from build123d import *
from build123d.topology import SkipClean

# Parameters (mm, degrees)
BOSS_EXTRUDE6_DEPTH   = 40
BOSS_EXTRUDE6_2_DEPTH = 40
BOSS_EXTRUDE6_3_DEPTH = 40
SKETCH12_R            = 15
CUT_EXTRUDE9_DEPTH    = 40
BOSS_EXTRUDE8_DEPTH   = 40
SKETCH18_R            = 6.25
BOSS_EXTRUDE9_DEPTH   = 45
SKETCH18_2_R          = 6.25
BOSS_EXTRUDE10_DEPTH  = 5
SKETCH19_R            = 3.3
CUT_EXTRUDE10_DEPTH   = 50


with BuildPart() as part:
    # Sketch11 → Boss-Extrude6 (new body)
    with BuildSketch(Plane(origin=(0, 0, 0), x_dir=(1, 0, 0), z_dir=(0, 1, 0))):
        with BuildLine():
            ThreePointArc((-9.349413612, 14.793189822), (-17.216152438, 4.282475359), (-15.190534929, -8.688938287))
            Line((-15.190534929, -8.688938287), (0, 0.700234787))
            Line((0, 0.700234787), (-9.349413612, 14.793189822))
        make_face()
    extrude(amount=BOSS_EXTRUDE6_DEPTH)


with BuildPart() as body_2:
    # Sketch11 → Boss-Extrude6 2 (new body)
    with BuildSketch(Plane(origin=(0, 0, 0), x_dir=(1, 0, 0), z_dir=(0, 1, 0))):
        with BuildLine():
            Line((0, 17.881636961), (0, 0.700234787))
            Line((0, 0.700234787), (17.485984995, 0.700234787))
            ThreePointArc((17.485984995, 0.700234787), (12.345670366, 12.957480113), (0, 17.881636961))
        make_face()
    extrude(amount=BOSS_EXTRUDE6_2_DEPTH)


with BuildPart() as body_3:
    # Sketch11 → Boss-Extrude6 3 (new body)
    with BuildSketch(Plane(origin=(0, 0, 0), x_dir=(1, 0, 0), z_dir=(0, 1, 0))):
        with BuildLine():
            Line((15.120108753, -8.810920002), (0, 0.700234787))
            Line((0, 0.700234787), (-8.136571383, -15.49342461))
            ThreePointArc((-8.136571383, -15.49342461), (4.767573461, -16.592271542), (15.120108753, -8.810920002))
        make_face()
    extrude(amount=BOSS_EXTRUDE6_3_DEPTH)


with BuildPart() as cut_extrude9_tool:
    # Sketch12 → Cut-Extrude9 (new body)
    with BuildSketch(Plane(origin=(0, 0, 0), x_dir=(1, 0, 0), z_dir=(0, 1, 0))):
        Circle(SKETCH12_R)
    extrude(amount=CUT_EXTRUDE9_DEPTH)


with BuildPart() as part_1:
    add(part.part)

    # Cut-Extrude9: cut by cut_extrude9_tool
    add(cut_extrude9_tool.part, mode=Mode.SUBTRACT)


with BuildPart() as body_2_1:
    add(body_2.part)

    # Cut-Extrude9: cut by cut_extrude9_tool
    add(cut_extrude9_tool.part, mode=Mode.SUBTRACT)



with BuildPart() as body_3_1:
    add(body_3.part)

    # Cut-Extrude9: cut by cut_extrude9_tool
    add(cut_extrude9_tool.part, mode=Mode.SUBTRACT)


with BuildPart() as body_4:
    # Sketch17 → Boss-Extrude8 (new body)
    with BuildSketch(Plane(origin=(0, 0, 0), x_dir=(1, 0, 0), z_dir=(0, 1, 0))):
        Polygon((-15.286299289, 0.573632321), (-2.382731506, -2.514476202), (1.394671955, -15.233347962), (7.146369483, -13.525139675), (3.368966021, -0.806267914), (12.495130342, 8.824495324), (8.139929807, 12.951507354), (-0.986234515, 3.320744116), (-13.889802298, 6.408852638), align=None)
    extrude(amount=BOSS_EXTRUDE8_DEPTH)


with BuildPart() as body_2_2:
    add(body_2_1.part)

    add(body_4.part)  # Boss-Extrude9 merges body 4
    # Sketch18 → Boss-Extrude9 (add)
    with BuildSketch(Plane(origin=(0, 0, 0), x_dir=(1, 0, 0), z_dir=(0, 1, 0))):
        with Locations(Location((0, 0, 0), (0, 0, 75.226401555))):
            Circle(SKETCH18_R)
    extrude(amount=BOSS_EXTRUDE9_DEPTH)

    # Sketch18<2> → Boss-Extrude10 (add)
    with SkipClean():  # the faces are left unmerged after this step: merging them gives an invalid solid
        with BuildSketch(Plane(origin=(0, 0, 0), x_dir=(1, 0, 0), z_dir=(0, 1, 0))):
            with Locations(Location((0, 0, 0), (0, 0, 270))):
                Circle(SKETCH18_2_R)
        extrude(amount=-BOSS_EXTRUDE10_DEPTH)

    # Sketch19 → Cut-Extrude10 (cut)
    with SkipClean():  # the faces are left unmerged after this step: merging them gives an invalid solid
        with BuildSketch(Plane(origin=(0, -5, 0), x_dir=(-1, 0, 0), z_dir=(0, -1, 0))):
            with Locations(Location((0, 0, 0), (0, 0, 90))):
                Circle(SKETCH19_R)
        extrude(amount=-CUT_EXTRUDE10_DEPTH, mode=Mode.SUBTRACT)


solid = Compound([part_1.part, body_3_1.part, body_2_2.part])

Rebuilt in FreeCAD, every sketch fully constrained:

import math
import FreeCAD as App
import Part
import Sketcher


def add_polygon(sketch, points):
    """Adds a closed chain of lines whose ends are joined by coincident constraints."""
    first, n = sketch.GeometryCount, len(points)
    for a, b in zip(points, points[1:] + points[:1]):
        sketch.addGeometry(Part.LineSegment(App.Vector(*a, 0), App.Vector(*b, 0)), False)
    for i in range(n):
        sketch.addConstraint(Sketcher.Constraint("Coincident", first + i, 2, first + (i + 1) % n, 1))

doc = App.newDocument("Part")
body = doc.addObject("PartDesign::Body", "Body")

# Sketch on XZ plane
sketch1 = body.newObject("Sketcher::SketchObject", "Sketch")
sketch1.AttachmentSupport = (doc.getObject("XZ_Plane"), [""])
sketch1.MapMode = "FlatFace"
sketch1.addGeometry([
    Part.ArcOfCircle(Part.Circle(App.Vector(-1, 0, 0), App.Vector(0, 0, 1), 17), math.radians(148), math.radians(240)),
    Part.LineSegment(App.Vector(-15, 9, 0), App.Vector(0, -1, 0)),
    Part.LineSegment(App.Vector(0, -1, 0), App.Vector(-9, -15, 0)),
], False)
sketch1.addConstraint([
    Sketcher.Constraint("Coincident", 0, 1, 1, 1),
    Sketcher.Constraint("Coincident", 1, 2, 2, 1),
    Sketcher.Constraint("Coincident", 2, 2, 0, 2),
    Sketcher.Constraint("PointOnObject", 1, 2, -2),
    Sketcher.Constraint("Radius", 0, 16.908369),
    Sketcher.Constraint("DistanceX", 0, 3, -1, 1, 0.807801),
    Sketcher.Constraint("Distance", 1, 17.858021),
    Sketcher.Constraint("DistanceY", 0, 3, -1, 1, 0.200938),
    Sketcher.Constraint("DistanceY", -1, 1, 0, 1, 8.688938),
    Sketcher.Constraint("DistanceY", 2, 2, -1, 1, 14.79319),
])
pad1 = body.newObject("PartDesign::Pad", "Pad")
pad1.Profile = sketch1
pad1.Length = 40
pad1.Reversed = True
body2 = doc.addObject("PartDesign::Body", "Body001")

# Sketch on XZ plane
sketch2 = body2.newObject("Sketcher::SketchObject", "Sketch001")
sketch2.AttachmentSupport = (doc.getObject("XZ_Plane001"), [""])
sketch2.MapMode = "FlatFace"
sketch2.addGeometry([
    Part.LineSegment(App.Vector(0, -18, 0), App.Vector(0, -1, 0)),
    Part.LineSegment(App.Vector(0, -1, 0), App.Vector(17, -1, 0)),
    Part.ArcOfCircle(Part.Circle(App.Vector(0, -1, 0), App.Vector(0, 0, 1), 17), math.radians(-91), math.radians(0)),
], False)
sketch2.addConstraint([
    Sketcher.Constraint("Coincident", 0, 2, 1, 1),
    Sketcher.Constraint("Coincident", 1, 2, 2, 2),
    Sketcher.Constraint("Coincident", 2, 1, 0, 1),
    Sketcher.Constraint("Vertical", 0),
    Sketcher.Constraint("Horizontal", 1),
    Sketcher.Constraint("PointOnObject", 0, 2, -2),
    Sketcher.Constraint("Horizontal", 2, 3, 0, 2),
    Sketcher.Constraint("Radius", 2, 17.184055),
    Sketcher.Constraint("DistanceX", 1, 1, 1, 2, 17.485985),
    Sketcher.Constraint("DistanceY", 2, 3, -1, 1, 0.700235),
])
pad2 = body2.newObject("PartDesign::Pad", "Pad001")
pad2.Profile = sketch2
pad2.Length = 40
pad2.Reversed = True
body3 = doc.addObject("PartDesign::Body", "Body002")

# Sketch on XZ plane
sketch3 = body3.newObject("Sketcher::SketchObject", "Sketch002")
sketch3.AttachmentSupport = (doc.getObject("XZ_Plane002"), [""])
sketch3.MapMode = "FlatFace"
sketch3.addGeometry([
    Part.LineSegment(App.Vector(15, 9, 0), App.Vector(0, -1, 0)),
    Part.LineSegment(App.Vector(0, -1, 0), App.Vector(-8, 15, 0)),
    Part.ArcOfCircle(Part.Circle(App.Vector(0, -1, 0), App.Vector(0, 0, 1), 18), math.radians(32), math.radians(116)),
], False)
sketch3.addConstraint([
    Sketcher.Constraint("Coincident", 0, 2, 1, 1),
    Sketcher.Constraint("Coincident", 1, 2, 2, 2),
    Sketcher.Constraint("Coincident", 2, 1, 0, 1),
    Sketcher.Constraint("PointOnObject", 0, 2, -2),
    Sketcher.Constraint("Radius", 2, 18.152946),
    Sketcher.Constraint("Distance", 1, 18.122869),
    Sketcher.Constraint("DistanceX", 1, 2, -1, 1, 8.136571),
    Sketcher.Constraint("DistanceX", -1, 1, 2, 1, 15.120109),
    Sketcher.Constraint("DistanceY", -1, 1, 2, 1, 8.81092),
    Sketcher.Constraint("DistanceY", 2, 3, 0, 2, 0.154488),
])
pad3 = body3.newObject("PartDesign::Pad", "Pad002")
pad3.Profile = sketch3
pad3.Length = 40
pad3.Reversed = True
body4 = doc.addObject("PartDesign::Body", "Body003")

# Sketch on XZ plane
sketch4 = body4.newObject("Sketcher::SketchObject", "Sketch003")
sketch4.AttachmentSupport = (doc.getObject("XZ_Plane003"), [""])
sketch4.MapMode = "FlatFace"
sketch4.addGeometry(Part.Circle(App.Vector(0, 0, 0), App.Vector(0, 0, 1), 15), False)
sketch4.addConstraint([
    Sketcher.Constraint("Coincident", 0, 3, -1, 1),
    Sketcher.Constraint("Diameter", 0, 30.0),
])
pad4 = body4.newObject("PartDesign::Pad", "Pad003")
pad4.Profile = sketch4
pad4.Length = 40
pad4.Reversed = True
doc.recompute()

body5 = doc.addObject("PartDesign::Body", "Body004")
body5.BaseFeature = body4
boolean = body.newObject("PartDesign::Boolean", "Boolean")
boolean.Type = "Cut"
boolean.addObjects([body5])
doc.recompute()

body6 = doc.addObject("PartDesign::Body", "Body005")
body6.BaseFeature = body4
boolean2 = body2.newObject("PartDesign::Boolean", "Boolean001")
boolean2.Type = "Cut"
boolean2.addObjects([body6])
doc.recompute()

boolean3 = body3.newObject("PartDesign::Boolean", "Boolean002")
boolean3.Type = "Cut"
boolean3.addObjects([body4])
body7 = doc.addObject("PartDesign::Body", "Body006")

# Sketch on XZ plane
sketch5 = body7.newObject("Sketcher::SketchObject", "Sketch004")
sketch5.AttachmentSupport = (doc.getObject("XZ_Plane006"), [""])
sketch5.MapMode = "FlatFace"
add_polygon(sketch5, [(-15, -1), (-2, 3), (1, 15), (7, 14), (3, 1), (12, -9), (8, -13), (-1, -3), (-14, -6)])  # lines 0-8
sketch5.addConstraint([
    Sketcher.Constraint("Perpendicular", 1, 2),
    Sketcher.Constraint("Perpendicular", 2, 3),
    Sketcher.Constraint("Perpendicular", 4, 5),
    Sketcher.Constraint("Perpendicular", 5, 6),
    Sketcher.Constraint("Parallel", 0, 7),
    Sketcher.Constraint("Perpendicular", 7, 8),
    Sketcher.Constraint("Equal", 0, 1),
    Sketcher.Constraint("Equal", 1, 3),
    Sketcher.Constraint("Equal", 3, 4),
    Sketcher.Constraint("Equal", 2, 5),
    Sketcher.Constraint("Equal", 4, 6),
    Sketcher.Constraint("Equal", 6, 7),
    Sketcher.Constraint("Equal", 5, 8),
    Sketcher.Constraint("Distance", 2, 6.0),
    Sketcher.Constraint("DistanceX", 8, 2, -1, 1, 15.286299),
    Sketcher.Constraint("DistanceX", 0, 2, 2, 2, 9.529101),
    Sketcher.Constraint("DistanceX", 5, 2, 4, 2, 4.355201),
    Sketcher.Constraint("DistanceY", -1, 1, 2, 2, 13.52514),
])
pad5 = body7.newObject("PartDesign::Pad", "Pad004")
pad5.Profile = sketch5
pad5.Length = 40
pad5.Reversed = True
doc.recompute()

boolean4 = body2.newObject("PartDesign::Boolean", "Boolean003")
boolean4.Type = "Fuse"
boolean4.addObjects([body7])

# Sketch on XZ plane
sketch6 = body2.newObject("Sketcher::SketchObject", "Sketch005")
sketch6.AttachmentSupport = (doc.getObject("XZ_Plane001"), [""])
sketch6.MapMode = "FlatFace"
sketch6.addGeometry(Part.Circle(App.Vector(0, 0, 0), App.Vector(0, 0, 1), 6), False)
sketch6.addConstraint([
    Sketcher.Constraint("Coincident", 0, 3, -1, 1),
    Sketcher.Constraint("Diameter", 0, 12.5),
])
pad6 = body2.newObject("PartDesign::Pad", "Pad005")
pad6.Profile = sketch6
pad6.Length = 45
pad6.Reversed = True

# Sketch on XZ plane
sketch7 = body2.newObject("Sketcher::SketchObject", "Sketch006")
sketch7.AttachmentSupport = (doc.getObject("XZ_Plane001"), [""])
sketch7.MapMode = "FlatFace"
sketch7.addGeometry(Part.Circle(App.Vector(0, 0, 0), App.Vector(0, 0, 1), 6), False)
sketch7.addConstraint([
    Sketcher.Constraint("Coincident", 0, 3, -1, 1),
    Sketcher.Constraint("Diameter", 0, 12.5),
])
pad7 = body2.newObject("PartDesign::Pad", "Pad006")
pad7.Profile = sketch7
pad7.Length = 5

# Sketch on XZ plane
sketch8 = body2.newObject("Sketcher::SketchObject", "Sketch007")
sketch8.AttachmentSupport = (doc.getObject("XZ_Plane001"), [""])
sketch8.MapMode = "FlatFace"
sketch8.AttachmentOffset = App.Placement(App.Vector(0, 0, 5), App.Rotation())
sketch8.addGeometry(Part.Circle(App.Vector(0, 0, 0), App.Vector(0, 0, 1), 3.3), False)
sketch8.addConstraint([
    Sketcher.Constraint("Coincident", 0, 3, -1, 1),
    Sketcher.Constraint("Diameter", 0, 6.6),
])
pocket1 = body2.newObject("PartDesign::Pocket", "Pocket")
pocket1.Profile = sketch8
pocket1.Length = 50

doc.recompute()
